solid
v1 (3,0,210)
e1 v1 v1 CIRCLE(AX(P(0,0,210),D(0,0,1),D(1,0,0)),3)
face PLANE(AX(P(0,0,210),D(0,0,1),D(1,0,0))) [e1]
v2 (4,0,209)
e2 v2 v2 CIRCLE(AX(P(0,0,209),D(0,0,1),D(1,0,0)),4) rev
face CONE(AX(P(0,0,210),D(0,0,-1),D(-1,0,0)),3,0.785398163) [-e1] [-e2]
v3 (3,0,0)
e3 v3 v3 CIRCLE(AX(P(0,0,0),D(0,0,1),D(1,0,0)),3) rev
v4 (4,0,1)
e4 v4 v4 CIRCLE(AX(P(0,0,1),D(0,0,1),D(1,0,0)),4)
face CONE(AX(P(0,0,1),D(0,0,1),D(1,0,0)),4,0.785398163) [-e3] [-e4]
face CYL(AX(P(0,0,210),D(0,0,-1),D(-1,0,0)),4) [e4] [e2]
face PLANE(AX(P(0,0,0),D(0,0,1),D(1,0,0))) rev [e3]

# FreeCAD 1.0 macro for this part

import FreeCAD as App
import Part
import Sketcher

V = App.Vector


def edges_at(feature, points):
    """Names of the edges that pass closest to the given points."""
    edges = feature.Shape.Edges
    near = lambda p: min(range(len(edges)), key=lambda i: edges[i].distToShape(Part.Vertex(*p))[0])
    return sorted({f"Edge{near(p) + 1}" for p in points})

doc = App.newDocument("Part")
body = doc.addObject("PartDesign::Body", "Body")

# Sketch on XY plane
sketch1 = body.newObject("Sketcher::SketchObject", "Sketch")
sketch1.AttachmentSupport = (doc.getObject("XY_Plane"), [""])
sketch1.MapMode = "FlatFace"
sketch1.addGeometry(Part.Circle(V(0, 0, 0), V(0, 0, 1), 4), False)
sketch1.addConstraint([
    Sketcher.Constraint("Coincident", 0, 3, -1, 1),
    Sketcher.Constraint("Diameter", 0, 8.0),
])
pad1 = body.newObject("PartDesign::Pad", "Pad")
pad1.Profile = sketch1
pad1.Length = 210
doc.recompute()

chamfer = body.newObject("PartDesign::Chamfer", "Chamfer")
chamfer.Base = (pad1, edges_at(pad1, [(-4, 0, 0), (-4, 0, 210)]))
chamfer.Size = 1

doc.recompute()
